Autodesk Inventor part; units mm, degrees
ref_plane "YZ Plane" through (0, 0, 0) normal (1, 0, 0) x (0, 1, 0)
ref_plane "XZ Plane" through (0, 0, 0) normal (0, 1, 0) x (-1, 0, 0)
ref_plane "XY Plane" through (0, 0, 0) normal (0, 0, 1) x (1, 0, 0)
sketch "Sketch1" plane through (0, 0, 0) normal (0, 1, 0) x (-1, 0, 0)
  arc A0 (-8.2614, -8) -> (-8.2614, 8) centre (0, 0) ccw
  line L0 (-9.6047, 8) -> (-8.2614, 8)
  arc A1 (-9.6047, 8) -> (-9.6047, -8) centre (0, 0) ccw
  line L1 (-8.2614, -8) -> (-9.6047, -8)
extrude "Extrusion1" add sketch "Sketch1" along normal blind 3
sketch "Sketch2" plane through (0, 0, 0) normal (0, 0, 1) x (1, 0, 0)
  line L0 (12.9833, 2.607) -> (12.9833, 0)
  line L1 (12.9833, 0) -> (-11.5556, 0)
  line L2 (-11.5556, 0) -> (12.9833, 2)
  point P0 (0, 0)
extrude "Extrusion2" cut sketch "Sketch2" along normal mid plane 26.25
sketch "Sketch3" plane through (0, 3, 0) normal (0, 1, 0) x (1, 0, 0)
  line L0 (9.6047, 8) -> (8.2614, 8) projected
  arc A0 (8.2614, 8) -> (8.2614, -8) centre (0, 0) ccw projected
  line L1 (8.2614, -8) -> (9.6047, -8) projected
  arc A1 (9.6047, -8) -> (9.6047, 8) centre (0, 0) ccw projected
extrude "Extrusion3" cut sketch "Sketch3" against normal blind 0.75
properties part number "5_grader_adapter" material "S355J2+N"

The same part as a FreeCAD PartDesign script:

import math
import FreeCAD as App
import Part
import Sketcher
from FreeCAD import Vector
Q = App.Units.Quantity


def add_polygon(sketch, points):
    """Adds a closed chain of lines whose ends are joined by coincident constraints."""
    first, n = sketch.GeometryCount, len(points)
    for a, b in zip(points, points[1:] + points[:1]):
        sketch.addGeometry(Part.LineSegment(App.Vector(*a, 0), App.Vector(*b, 0)), False)
    for i in range(n):
        sketch.addConstraint(Sketcher.Constraint("Coincident", first + i, 2, first + (i + 1) % n, 1))

doc = App.newDocument("Part")
body = doc.addObject("PartDesign::Body", "Body")

# Sketch on XZ plane
sketch1 = body.newObject("Sketcher::SketchObject", "Sketch")
sketch1.AttachmentSupport = (doc.getObject("XZ_Plane"), [""])
sketch1.MapMode = "FlatFace"
sketch1.addGeometry(Part.LineSegment(Vector(9.6, -8, 0), Vector(8.3, -8, 0)), False)
sketch1.addGeometry(Part.ArcOfCircle(Part.Circle(Vector(0, 0, 0), Vector(0, 0, 1), 11.5), math.radians(44), math.radians(316)), False)
sketch1.addGeometry(Part.LineSegment(Vector(8.3, 8, 0), Vector(9.6, 8, 0)), False)
sketch1.addGeometry(Part.ArcOfCircle(Part.Circle(Vector(0, 0, 0), Vector(0, 0, 1), 12.5), math.radians(-40), math.radians(40)), False)
sketch1.addConstraint(Sketcher.Constraint("Coincident", 0, 2, 1, 2))
sketch1.addConstraint(Sketcher.Constraint("Coincident", 1, 1, 2, 1))
sketch1.addConstraint(Sketcher.Constraint("Coincident", 2, 2, 3, 2))
sketch1.addConstraint(Sketcher.Constraint("Coincident", 3, 1, 0, 1))
sketch1.addConstraint(Sketcher.Constraint("Horizontal", 0))
sketch1.addConstraint(Sketcher.Constraint("Horizontal", 2))
sketch1.addConstraint(Sketcher.Constraint("Coincident", 1, 3, -1, 1))
sketch1.addConstraint(Sketcher.Constraint("Coincident", 3, 3, -1, 1))
sketch1.addConstraint(Sketcher.Constraint("Vertical", 0, 2, 1, 1))
sketch1.addConstraint(Sketcher.Constraint("Radius", 1, Q("11.5 mm")))
sketch1.addConstraint(Sketcher.Constraint("Radius", 3, Q("12.5 mm")))
sketch1.addConstraint(Sketcher.Constraint("DistanceY", 0, 2, -1, 1, Q("8 mm")))
pad1 = body.newObject("PartDesign::Pad", "Pad")
pad1.Profile = sketch1
pad1.Length = 3
pad1.Reversed = True

# Sketch on XY plane
sketch2 = body.newObject("Sketcher::SketchObject", "Sketch001")
sketch2.AttachmentSupport = (doc.getObject("XY_Plane"), [""])
sketch2.MapMode = "FlatFace"
add_polygon(sketch2, [(13, 0), (13, 2), (-11.6, 0)])  # lines 0-2
sketch2.addConstraint(Sketcher.Constraint("Vertical", 0))
sketch2.addConstraint(Sketcher.Constraint("Horizontal", 2))
sketch2.addConstraint(Sketcher.Constraint("PointOnObject", 1, 2, -1))
sketch2.addConstraint(Sketcher.Constraint("DistanceY", 0, 1, 0, 2, Q("2 mm")))
sketch2.addConstraint(Sketcher.Constraint("Angle", 1, Q("-175.3405 deg")))
sketch2.addConstraint(Sketcher.Constraint("DistanceX", -1, 1, 0, 2, Q("12.9833 mm")))
pocket1 = body.newObject("PartDesign::Pocket", "Pocket")
pocket1.Profile = sketch2
pocket1.Length = 26.25
pocket1.Midplane = True

# Sketch on XZ plane
sketch3 = body.newObject("Sketcher::SketchObject", "Sketch002")
sketch3.AttachmentSupport = (doc.getObject("XZ_Plane"), [""])
sketch3.MapMode = "FlatFace"
sketch3.AttachmentOffset = App.Placement(Vector(0, 0, -3), App.Rotation())
sketch3.addGeometry(Part.ArcOfCircle(Part.Circle(Vector(0, 0, 0), Vector(0, 0, 1), 12.5), math.radians(-40), math.radians(40)), False)
sketch3.addGeometry(Part.LineSegment(Vector(9.6, -8, 0), Vector(8.3, -8, 0)), False)
sketch3.addGeometry(Part.ArcOfCircle(Part.Circle(Vector(0, 0, 0), Vector(0, 0, 1), 11.5), math.radians(44), math.radians(316)), False)
sketch3.addGeometry(Part.LineSegment(Vector(8.3, 8, 0), Vector(9.6, 8, 0)), False)
sketch3.addConstraint(Sketcher.Constraint("Coincident", 0, 1, 1, 1))
sketch3.addConstraint(Sketcher.Constraint("Coincident", 1, 2, 2, 2))
sketch3.addConstraint(Sketcher.Constraint("Coincident", 2, 1, 3, 1))
sketch3.addConstraint(Sketcher.Constraint("Coincident", 3, 2, 0, 2))
sketch3.addConstraint(Sketcher.Constraint("Horizontal", 1))
sketch3.addConstraint(Sketcher.Constraint("Horizontal", 3))
sketch3.addConstraint(Sketcher.Constraint("Coincident", 0, 3, -1, 1))
sketch3.addConstraint(Sketcher.Constraint("Coincident", 2, 3, -1, 1))
sketch3.addConstraint(Sketcher.Constraint("Vertical", 1, 2, 2, 1))
sketch3.addConstraint(Sketcher.Constraint("Radius", 0, Q("12.5 mm")))
sketch3.addConstraint(Sketcher.Constraint("Radius", 2, Q("11.5 mm")))
sketch3.addConstraint(Sketcher.Constraint("DistanceY", 0, 1, -1, 1, Q("8 mm")))
pocket2 = body.newObject("PartDesign::Pocket", "Pocket001")
pocket2.Profile = sketch3
pocket2.Length = 0.75
pocket2.Reversed = True

doc.recompute()
